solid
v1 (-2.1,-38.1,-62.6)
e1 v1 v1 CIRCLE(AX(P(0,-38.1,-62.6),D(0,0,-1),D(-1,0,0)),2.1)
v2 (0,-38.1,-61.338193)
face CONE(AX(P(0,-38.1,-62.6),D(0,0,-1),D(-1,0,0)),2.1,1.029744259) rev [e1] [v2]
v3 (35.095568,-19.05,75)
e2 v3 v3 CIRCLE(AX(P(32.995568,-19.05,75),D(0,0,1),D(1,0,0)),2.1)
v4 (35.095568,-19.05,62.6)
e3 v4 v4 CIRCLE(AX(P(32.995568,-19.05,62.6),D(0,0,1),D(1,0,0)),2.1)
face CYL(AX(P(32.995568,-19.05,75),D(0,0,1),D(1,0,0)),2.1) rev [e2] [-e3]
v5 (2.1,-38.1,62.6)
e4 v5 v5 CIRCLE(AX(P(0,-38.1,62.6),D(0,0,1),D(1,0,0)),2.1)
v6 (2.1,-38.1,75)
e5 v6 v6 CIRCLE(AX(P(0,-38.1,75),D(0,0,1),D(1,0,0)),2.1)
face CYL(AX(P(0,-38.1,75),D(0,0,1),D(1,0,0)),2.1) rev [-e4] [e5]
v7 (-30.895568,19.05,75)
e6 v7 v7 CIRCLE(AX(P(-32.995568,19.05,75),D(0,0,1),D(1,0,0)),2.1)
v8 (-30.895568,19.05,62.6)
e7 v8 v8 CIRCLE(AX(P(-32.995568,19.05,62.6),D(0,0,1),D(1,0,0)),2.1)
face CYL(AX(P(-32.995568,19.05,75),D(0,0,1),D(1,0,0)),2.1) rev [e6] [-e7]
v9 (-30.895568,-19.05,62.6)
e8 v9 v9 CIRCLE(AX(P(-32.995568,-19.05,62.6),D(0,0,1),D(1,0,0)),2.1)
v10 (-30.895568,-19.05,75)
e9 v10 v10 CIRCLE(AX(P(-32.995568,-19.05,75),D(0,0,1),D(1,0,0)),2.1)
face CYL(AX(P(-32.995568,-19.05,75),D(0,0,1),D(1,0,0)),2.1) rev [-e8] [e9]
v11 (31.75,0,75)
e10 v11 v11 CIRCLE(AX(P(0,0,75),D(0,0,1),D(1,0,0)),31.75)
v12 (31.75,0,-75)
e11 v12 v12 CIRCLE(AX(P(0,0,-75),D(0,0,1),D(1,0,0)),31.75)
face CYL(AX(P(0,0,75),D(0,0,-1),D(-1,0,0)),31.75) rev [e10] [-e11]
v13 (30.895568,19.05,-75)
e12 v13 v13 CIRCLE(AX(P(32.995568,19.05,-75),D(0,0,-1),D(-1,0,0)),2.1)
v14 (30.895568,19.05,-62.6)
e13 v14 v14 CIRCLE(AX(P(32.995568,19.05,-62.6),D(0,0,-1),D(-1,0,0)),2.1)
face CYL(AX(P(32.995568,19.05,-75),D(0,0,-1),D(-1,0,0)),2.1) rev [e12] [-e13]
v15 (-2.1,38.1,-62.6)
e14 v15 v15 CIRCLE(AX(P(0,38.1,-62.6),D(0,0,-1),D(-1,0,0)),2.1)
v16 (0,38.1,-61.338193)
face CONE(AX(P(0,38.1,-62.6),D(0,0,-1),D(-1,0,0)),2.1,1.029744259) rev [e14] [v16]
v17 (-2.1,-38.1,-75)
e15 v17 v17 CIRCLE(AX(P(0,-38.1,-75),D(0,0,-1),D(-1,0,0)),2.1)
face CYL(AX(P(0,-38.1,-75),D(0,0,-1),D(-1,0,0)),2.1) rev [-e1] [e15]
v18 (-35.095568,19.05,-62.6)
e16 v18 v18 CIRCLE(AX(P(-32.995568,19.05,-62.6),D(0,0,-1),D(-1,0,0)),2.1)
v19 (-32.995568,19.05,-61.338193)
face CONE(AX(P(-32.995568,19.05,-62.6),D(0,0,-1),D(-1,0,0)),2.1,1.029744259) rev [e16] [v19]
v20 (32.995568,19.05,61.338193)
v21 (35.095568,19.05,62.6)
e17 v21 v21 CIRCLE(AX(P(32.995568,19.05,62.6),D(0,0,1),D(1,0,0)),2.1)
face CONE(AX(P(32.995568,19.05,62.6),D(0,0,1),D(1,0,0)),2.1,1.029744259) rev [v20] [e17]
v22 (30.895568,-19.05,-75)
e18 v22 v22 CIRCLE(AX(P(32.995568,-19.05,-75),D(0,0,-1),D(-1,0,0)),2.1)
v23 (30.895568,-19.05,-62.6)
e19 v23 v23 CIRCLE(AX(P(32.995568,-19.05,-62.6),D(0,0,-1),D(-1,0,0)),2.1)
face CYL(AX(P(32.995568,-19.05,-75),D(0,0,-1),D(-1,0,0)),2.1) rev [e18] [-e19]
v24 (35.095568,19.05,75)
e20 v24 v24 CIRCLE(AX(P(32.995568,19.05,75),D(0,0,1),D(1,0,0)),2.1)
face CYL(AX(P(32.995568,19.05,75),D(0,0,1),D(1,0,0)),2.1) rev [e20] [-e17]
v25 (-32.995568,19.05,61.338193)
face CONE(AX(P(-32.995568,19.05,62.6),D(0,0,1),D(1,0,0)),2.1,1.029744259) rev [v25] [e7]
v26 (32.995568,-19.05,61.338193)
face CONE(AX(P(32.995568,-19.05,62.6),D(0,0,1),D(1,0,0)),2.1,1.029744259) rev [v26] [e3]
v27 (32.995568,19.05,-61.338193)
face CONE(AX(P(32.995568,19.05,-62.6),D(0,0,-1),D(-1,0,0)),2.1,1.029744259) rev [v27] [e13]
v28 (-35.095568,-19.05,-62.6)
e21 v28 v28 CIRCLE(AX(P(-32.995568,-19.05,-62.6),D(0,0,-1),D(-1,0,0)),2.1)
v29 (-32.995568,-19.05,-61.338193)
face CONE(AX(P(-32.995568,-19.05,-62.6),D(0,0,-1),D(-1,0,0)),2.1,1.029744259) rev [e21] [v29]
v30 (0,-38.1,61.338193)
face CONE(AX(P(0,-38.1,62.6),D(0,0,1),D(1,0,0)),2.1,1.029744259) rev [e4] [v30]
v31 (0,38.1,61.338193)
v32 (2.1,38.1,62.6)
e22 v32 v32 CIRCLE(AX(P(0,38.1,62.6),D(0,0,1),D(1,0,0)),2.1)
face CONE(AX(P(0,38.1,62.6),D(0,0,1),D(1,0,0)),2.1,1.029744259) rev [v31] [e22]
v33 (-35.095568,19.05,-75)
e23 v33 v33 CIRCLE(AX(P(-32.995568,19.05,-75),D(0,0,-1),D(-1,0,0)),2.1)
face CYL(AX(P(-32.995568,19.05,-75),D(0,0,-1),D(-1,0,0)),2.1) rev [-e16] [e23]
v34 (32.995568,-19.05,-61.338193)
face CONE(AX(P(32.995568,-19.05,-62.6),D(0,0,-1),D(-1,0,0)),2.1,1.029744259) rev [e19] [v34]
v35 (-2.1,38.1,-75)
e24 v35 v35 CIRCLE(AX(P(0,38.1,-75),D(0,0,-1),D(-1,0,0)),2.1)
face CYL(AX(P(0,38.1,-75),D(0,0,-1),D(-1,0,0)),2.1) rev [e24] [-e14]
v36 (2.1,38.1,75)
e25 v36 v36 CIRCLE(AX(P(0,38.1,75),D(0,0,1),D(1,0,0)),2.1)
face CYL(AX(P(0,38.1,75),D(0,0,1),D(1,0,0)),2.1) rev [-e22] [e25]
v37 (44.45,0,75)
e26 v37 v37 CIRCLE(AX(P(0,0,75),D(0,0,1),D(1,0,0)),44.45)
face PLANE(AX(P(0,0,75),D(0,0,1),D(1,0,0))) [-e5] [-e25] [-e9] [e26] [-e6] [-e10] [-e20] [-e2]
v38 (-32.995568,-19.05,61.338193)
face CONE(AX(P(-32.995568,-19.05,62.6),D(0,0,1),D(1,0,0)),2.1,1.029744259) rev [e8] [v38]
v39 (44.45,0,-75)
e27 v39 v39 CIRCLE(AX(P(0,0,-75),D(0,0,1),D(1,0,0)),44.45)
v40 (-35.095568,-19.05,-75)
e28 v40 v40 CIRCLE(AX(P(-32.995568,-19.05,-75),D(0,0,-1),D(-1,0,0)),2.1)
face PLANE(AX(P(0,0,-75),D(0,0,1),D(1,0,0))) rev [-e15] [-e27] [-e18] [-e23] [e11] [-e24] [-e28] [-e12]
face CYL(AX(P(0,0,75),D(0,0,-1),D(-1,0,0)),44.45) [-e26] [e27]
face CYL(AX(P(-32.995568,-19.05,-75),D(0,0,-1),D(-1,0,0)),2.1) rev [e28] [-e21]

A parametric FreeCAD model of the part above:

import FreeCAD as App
import Part
import Sketcher

V = App.Vector
Q = App.Units.Quantity


def add_polygon(sketch, points):
    """Adds a closed chain of lines whose ends are joined by coincident constraints."""
    first, n = sketch.GeometryCount, len(points)
    for a, b in zip(points, points[1:] + points[:1]):
        sketch.addGeometry(Part.LineSegment(App.Vector(*a, 0), App.Vector(*b, 0)), False)
    for i in range(n):
        sketch.addConstraint(Sketcher.Constraint("Coincident", first + i, 2, first + (i + 1) % n, 1))

doc = App.newDocument("Part")
params = doc.addObject("Spreadsheet::Sheet", "Params")
for row, (alias, value) in enumerate([
    ("sketch1_diameter", "88.9 mm"),
    ("sketch1_diameter2", "63.5 mm"),
    ("pad1_length", "150 mm"),
    ("sketch2_width", "2.1 mm"),
    ("sketch2_height", "12.4 mm"),
    ("groove_angle", "360 deg"),
    ("sketch3_width", "2.1 mm"),
    ("sketch3_height", "12.4 mm"),
    ("groove2_angle", "360 deg"),
    ("sketch4_width", "2.1 mm"),
    ("sketch4_height", "12.4 mm"),
    ("groove3_angle", "360 deg"),
    ("sketch5_width", "2.1 mm"),
    ("sketch5_height", "12.4 mm"),
    ("groove4_angle", "360 deg"),
    ("sketch6_width", "2.1 mm"),
    ("sketch6_height", "12.4 mm"),
    ("groove5_angle", "360 deg"),
    ("sketch7_width", "2.1 mm"),
    ("sketch7_height", "12.4 mm"),
    ("groove6_angle", "360 deg"),
], start=1):
    params.set(f"A{row}", alias)
    params.set(f"B{row}", "=" + value)
    params.setAlias(f"B{row}", alias)

body = doc.addObject("PartDesign::Body", "Body")

# Sketch on XY plane
sketch1 = body.newObject("Sketcher::SketchObject", "Sketch")
sketch1.AttachmentSupport = (doc.getObject("XY_Plane"), [""])
sketch1.MapMode = "FlatFace"
sketch1.addGeometry([
    Part.Circle(V(0, 0, 0), V(0, 0, 1), 44),
    Part.Circle(V(0, 0, 0), V(0, 0, 1), 32),
], False)
sketch1.addConstraint([
    Sketcher.Constraint("Coincident", 0, 3, -1, 1),
    Sketcher.Constraint("Coincident", 1, 3, -1, 1),
    Sketcher.Constraint("Diameter", 0, Q("88.9 mm")),
    Sketcher.Constraint("Diameter", 1, Q("63.5 mm")),
])
sketch1.setExpression("Constraints[2]", "Params.sketch1_diameter")
sketch1.setExpression("Constraints[3]", "Params.sketch1_diameter2")
pad1 = body.newObject("PartDesign::Pad", "Pad")
pad1.Profile = sketch1
pad1.setExpression("Length", "Params.pad1_length")
pad1.Midplane = True

# Sketch on YZ plane
sketch2 = body.newObject("Sketcher::SketchObject", "Sketch001")
sketch2.AttachmentSupport = (doc.getObject("YZ_Plane"), [""])
sketch2.MapMode = "FlatFace"
add_polygon(sketch2, [(38.1, 61.3), (38.1, 75), (36, 75), (36, 62.6)])  # lines 0-3
sketch2.addGeometry(Part.LineSegment(V(38.1, 75, 0), V(38.1, 61.3, 0)), True)  # axis
sketch2.addConstraint([
    Sketcher.Constraint("Vertical", 0),
    Sketcher.Constraint("Horizontal", 1),
    Sketcher.Constraint("Vertical", 2),
    Sketcher.Constraint("Vertical", 4),
    Sketcher.Constraint("Coincident", 4, 1, 0, 2),
    Sketcher.Constraint("Equal", 0, 4),
    Sketcher.Constraint("Angle", 3, Q("-31 deg")),
    Sketcher.Constraint("DistanceX", 1, 2, 1, 1, Q("2.1 mm")),
    Sketcher.Constraint("DistanceY", 2, 2, 2, 1, Q("12.4 mm")),
    Sketcher.Constraint("DistanceY", -1, 1, 0, 2, Q("75 mm")),
    Sketcher.Constraint("DistanceX", -1, 1, 1, 2, Q("36 mm")),
])
sketch2.setExpression("Constraints[11]", "Params.sketch2_width")
sketch2.setExpression("Constraints[12]", "Params.sketch2_height")
groove = body.newObject("PartDesign::Groove", "Groove")
groove.Profile = sketch2
groove.ReferenceAxis = (sketch2, ["Axis0"])
groove.setExpression("Angle", "Params.groove_angle")
doc.recompute()

polarpattern = body.newObject("PartDesign::PolarPattern", "PolarPattern")
polarpattern.Originals = [groove]
polarpattern.Axis = (doc.getObject("Z_Axis"), [""])
polarpattern.Angle = 360
polarpattern.Occurrences = 6
body.Tip = polarpattern
doc.recompute()

mirrored = body.newObject("PartDesign::Mirrored", "Mirrored")
mirrored.Originals = [groove]
mirrored.MirrorPlane = (doc.getObject("XY_Plane"), [""])
body.Tip = mirrored

# Sketch on an angled plane
sketch3 = body.newObject("Sketcher::SketchObject", "Sketch002")
sketch3.Placement = App.Placement(V(-32.995568, 19.05, -75), App.Rotation(V(0.866025404, -0.5, 0), V(0, 0, -1), V(0.5, 0.866025404, 0), "ZXY"))
add_polygon(sketch3, [(0, 0), (0, -13.7), (2.1, -12.4), (2.1, 0)])  # lines 0-3
sketch3.addConstraint([
    Sketcher.Constraint("Vertical", 0),
    Sketcher.Constraint("Vertical", 2),
    Sketcher.Constraint("Horizontal", 3),
    Sketcher.Constraint("Coincident", 3, 2, -1, 1),
    Sketcher.Constraint("Angle", 1, Q("31 deg")),
    Sketcher.Constraint("DistanceX", 3, 2, 3, 1, Q("2.1 mm")),
    Sketcher.Constraint("DistanceY", 2, 1, 2, 2, Q("12.4 mm")),
])
sketch3.setExpression("Constraints[9]", "Params.sketch3_width")
sketch3.setExpression("Constraints[10]", "Params.sketch3_height")
groove2 = body.newObject("PartDesign::Groove", "Groove001")
groove2.Profile = sketch3
groove2.ReferenceAxis = (sketch3, ["V_Axis"])
groove2.setExpression("Angle", "Params.groove2_angle")

# Sketch on an angled plane
sketch4 = body.newObject("Sketcher::SketchObject", "Sketch003")
sketch4.Placement = App.Placement(V(-32.995568, -19.05, -75), App.Rotation(V(0.866025404, 0.5, 0), V(0, 0, -1), V(-0.5, 0.866025404, 0), "ZXY"))
add_polygon(sketch4, [(0, 0), (0, -13.7), (2.1, -12.4), (2.1, 0)])  # lines 0-3
sketch4.addConstraint([
    Sketcher.Constraint("Vertical", 0),
    Sketcher.Constraint("Vertical", 2),
    Sketcher.Constraint("Horizontal", 3),
    Sketcher.Constraint("Coincident", 3, 2, -1, 1),
    Sketcher.Constraint("Angle", 1, Q("31 deg")),
    Sketcher.Constraint("DistanceX", 3, 2, 3, 1, Q("2.1 mm")),
    Sketcher.Constraint("DistanceY", 2, 1, 2, 2, Q("12.4 mm")),
])
sketch4.setExpression("Constraints[9]", "Params.sketch4_width")
sketch4.setExpression("Constraints[10]", "Params.sketch4_height")
groove3 = body.newObject("PartDesign::Groove", "Groove002")
groove3.Profile = sketch4
groove3.ReferenceAxis = (sketch4, ["V_Axis"])
groove3.setExpression("Angle", "Params.groove3_angle")

# Sketch on YZ plane
sketch5 = body.newObject("Sketcher::SketchObject", "Sketch004")
sketch5.AttachmentSupport = (doc.getObject("YZ_Plane"), [""])
sketch5.MapMode = "FlatFace"
add_polygon(sketch5, [(-38.1, -75), (-38.1, -61.3), (-36, -62.6), (-36, -75)])  # lines 0-3
sketch5.addGeometry(Part.LineSegment(V(-38.1, -61.3, 0), V(-38.1, -75, 0)), True)  # axis
sketch5.addConstraint([
    Sketcher.Constraint("Vertical", 0),
    Sketcher.Constraint("Vertical", 2),
    Sketcher.Constraint("Horizontal", 3),
    Sketcher.Constraint("Vertical", 4),
    Sketcher.Constraint("Coincident", 4, 1, 0, 2),
    Sketcher.Constraint("Horizontal", 2, 2, 4, 2),
    Sketcher.Constraint("Angle", 1, Q("-31 deg")),
    Sketcher.Constraint("DistanceX", 3, 2, 3, 1, Q("2.1 mm")),
    Sketcher.Constraint("DistanceY", 2, 2, 2, 1, Q("12.4 mm")),
    Sketcher.Constraint("DistanceX", 1, 2, -1, 1, Q("36 mm")),
    Sketcher.Constraint("DistanceY", 2, 2, -1, 1, Q("75 mm")),
])
sketch5.setExpression("Constraints[11]", "Params.sketch5_width")
sketch5.setExpression("Constraints[12]", "Params.sketch5_height")
groove4 = body.newObject("PartDesign::Groove", "Groove003")
groove4.Profile = sketch5
groove4.ReferenceAxis = (sketch5, ["Axis0"])
groove4.setExpression("Angle", "Params.groove4_angle")

# Sketch on an angled plane
sketch6 = body.newObject("Sketcher::SketchObject", "Sketch005")
sketch6.Placement = App.Placement(V(32.995568, -19.05, -75), App.Rotation(V(-0.866025404, 0.5, 0), V(0, 0, -1), V(-0.5, -0.866025404, 0), "ZXY"))
add_polygon(sketch6, [(0, 0), (0, -13.7), (2.1, -12.4), (2.1, 0)])  # lines 0-3
sketch6.addConstraint([
    Sketcher.Constraint("Vertical", 0),
    Sketcher.Constraint("Vertical", 2),
    Sketcher.Constraint("Horizontal", 3),
    Sketcher.Constraint("Coincident", 3, 2, -1, 1),
    Sketcher.Constraint("Angle", 1, Q("31 deg")),
    Sketcher.Constraint("DistanceX", 3, 2, 3, 1, Q("2.1 mm")),
    Sketcher.Constraint("DistanceY", 2, 1, 2, 2, Q("12.4 mm")),
])
sketch6.setExpression("Constraints[9]", "Params.sketch6_width")
sketch6.setExpression("Constraints[10]", "Params.sketch6_height")
groove5 = body.newObject("PartDesign::Groove", "Groove004")
groove5.Profile = sketch6
groove5.ReferenceAxis = (sketch6, ["V_Axis"])
groove5.setExpression("Angle", "Params.groove5_angle")

# Sketch on an angled plane
sketch7 = body.newObject("Sketcher::SketchObject", "Sketch006")
sketch7.Placement = App.Placement(V(32.995568, 19.05, -75), App.Rotation(V(-0.866025404, -0.5, 0), V(0, 0, -1), V(0.5, -0.866025404, 0), "ZXY"))
add_polygon(sketch7, [(0, 0), (0, -13.7), (2.1, -12.4), (2.1, 0)])  # lines 0-3
sketch7.addConstraint([
    Sketcher.Constraint("Vertical", 0),
    Sketcher.Constraint("Vertical", 2),
    Sketcher.Constraint("Horizontal", 3),
    Sketcher.Constraint("Coincident", 3, 2, -1, 1),
    Sketcher.Constraint("Angle", 1, Q("31 deg")),
    Sketcher.Constraint("DistanceX", 3, 2, 3, 1, Q("2.1 mm")),
    Sketcher.Constraint("DistanceY", 2, 1, 2, 2, Q("12.4 mm")),
])
sketch7.setExpression("Constraints[9]", "Params.sketch7_width")
sketch7.setExpression("Constraints[10]", "Params.sketch7_height")
groove6 = body.newObject("PartDesign::Groove", "Groove005")
groove6.Profile = sketch7
groove6.ReferenceAxis = (sketch7, ["V_Axis"])
groove6.setExpression("Angle", "Params.groove6_angle")

doc.recompute()
